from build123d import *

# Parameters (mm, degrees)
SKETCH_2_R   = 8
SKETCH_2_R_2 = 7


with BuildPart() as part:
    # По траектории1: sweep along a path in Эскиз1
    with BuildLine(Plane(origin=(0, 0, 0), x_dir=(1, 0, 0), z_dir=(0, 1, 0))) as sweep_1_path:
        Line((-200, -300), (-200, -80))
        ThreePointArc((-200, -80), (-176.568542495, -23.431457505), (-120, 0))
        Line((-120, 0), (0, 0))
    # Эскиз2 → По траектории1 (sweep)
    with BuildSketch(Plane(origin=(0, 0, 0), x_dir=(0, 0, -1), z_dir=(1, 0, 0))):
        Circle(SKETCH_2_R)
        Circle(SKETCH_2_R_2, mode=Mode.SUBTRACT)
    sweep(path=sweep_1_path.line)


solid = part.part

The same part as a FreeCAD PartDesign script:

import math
import FreeCAD as App
import Part
import Sketcher

doc = App.newDocument("Part")
body = doc.addObject("PartDesign::Body", "Body")

# Sketch on YZ plane
sketch1 = body.newObject("Sketcher::SketchObject", "Sketch")
sketch1.AttachmentSupport = (doc.getObject("YZ_Plane"), [""])
sketch1.MapMode = "FlatFace"
sketch1.addGeometry([
    Part.Circle(App.Vector(0, 0, 0), App.Vector(0, 0, 1), 8),
    Part.Circle(App.Vector(0, 0, 0), App.Vector(0, 0, 1), 7),
], False)
sketch1.addConstraint([
    Sketcher.Constraint("Coincident", 0, 3, -1, 1),
    Sketcher.Constraint("Coincident", 1, 3, -1, 1),
    Sketcher.Constraint("Diameter", 0, 16.0),
    Sketcher.Constraint("Diameter", 1, 14.0),
])

# Sketch on XZ plane
sketch2 = body.newObject("Sketcher::SketchObject", "Sketch001")
sketch2.AttachmentSupport = (doc.getObject("XZ_Plane"), [""])
sketch2.MapMode = "FlatFace"
sketch2.addGeometry([
    Part.LineSegment(App.Vector(-200, 300, 0), App.Vector(-200, 80, 0)),
    Part.ArcOfCircle(Part.Circle(App.Vector(-120, 80, 0), App.Vector(0, 0, 1), 80), math.radians(180), math.radians(270)),
    Part.LineSegment(App.Vector(-120, 0, 0), App.Vector(0, 0, 0)),
], False)
sketch2.addConstraint([
    Sketcher.Constraint("Tangent", 0, 2, 1, 1),
    Sketcher.Constraint("Tangent", 1, 2, 2, 1),
    Sketcher.Constraint("Vertical", 0),
    Sketcher.Constraint("Horizontal", 2),
    Sketcher.Constraint("Coincident", 2, 2, -1, 1),
    Sketcher.Constraint("Radius", 1, 80.0),
    Sketcher.Constraint("DistanceX", 2, 1, 2, 2, 120.0),
    Sketcher.Constraint("DistanceY", 0, 2, 0, 1, 220.0),
])
doc.recompute()

additivepipe = body.newObject("PartDesign::AdditivePipe", "AdditivePipe")
additivepipe.Profile = sketch1
additivepipe.Spine = (sketch2, ["Edge1", "Edge2", "Edge3"])

doc.recompute()
